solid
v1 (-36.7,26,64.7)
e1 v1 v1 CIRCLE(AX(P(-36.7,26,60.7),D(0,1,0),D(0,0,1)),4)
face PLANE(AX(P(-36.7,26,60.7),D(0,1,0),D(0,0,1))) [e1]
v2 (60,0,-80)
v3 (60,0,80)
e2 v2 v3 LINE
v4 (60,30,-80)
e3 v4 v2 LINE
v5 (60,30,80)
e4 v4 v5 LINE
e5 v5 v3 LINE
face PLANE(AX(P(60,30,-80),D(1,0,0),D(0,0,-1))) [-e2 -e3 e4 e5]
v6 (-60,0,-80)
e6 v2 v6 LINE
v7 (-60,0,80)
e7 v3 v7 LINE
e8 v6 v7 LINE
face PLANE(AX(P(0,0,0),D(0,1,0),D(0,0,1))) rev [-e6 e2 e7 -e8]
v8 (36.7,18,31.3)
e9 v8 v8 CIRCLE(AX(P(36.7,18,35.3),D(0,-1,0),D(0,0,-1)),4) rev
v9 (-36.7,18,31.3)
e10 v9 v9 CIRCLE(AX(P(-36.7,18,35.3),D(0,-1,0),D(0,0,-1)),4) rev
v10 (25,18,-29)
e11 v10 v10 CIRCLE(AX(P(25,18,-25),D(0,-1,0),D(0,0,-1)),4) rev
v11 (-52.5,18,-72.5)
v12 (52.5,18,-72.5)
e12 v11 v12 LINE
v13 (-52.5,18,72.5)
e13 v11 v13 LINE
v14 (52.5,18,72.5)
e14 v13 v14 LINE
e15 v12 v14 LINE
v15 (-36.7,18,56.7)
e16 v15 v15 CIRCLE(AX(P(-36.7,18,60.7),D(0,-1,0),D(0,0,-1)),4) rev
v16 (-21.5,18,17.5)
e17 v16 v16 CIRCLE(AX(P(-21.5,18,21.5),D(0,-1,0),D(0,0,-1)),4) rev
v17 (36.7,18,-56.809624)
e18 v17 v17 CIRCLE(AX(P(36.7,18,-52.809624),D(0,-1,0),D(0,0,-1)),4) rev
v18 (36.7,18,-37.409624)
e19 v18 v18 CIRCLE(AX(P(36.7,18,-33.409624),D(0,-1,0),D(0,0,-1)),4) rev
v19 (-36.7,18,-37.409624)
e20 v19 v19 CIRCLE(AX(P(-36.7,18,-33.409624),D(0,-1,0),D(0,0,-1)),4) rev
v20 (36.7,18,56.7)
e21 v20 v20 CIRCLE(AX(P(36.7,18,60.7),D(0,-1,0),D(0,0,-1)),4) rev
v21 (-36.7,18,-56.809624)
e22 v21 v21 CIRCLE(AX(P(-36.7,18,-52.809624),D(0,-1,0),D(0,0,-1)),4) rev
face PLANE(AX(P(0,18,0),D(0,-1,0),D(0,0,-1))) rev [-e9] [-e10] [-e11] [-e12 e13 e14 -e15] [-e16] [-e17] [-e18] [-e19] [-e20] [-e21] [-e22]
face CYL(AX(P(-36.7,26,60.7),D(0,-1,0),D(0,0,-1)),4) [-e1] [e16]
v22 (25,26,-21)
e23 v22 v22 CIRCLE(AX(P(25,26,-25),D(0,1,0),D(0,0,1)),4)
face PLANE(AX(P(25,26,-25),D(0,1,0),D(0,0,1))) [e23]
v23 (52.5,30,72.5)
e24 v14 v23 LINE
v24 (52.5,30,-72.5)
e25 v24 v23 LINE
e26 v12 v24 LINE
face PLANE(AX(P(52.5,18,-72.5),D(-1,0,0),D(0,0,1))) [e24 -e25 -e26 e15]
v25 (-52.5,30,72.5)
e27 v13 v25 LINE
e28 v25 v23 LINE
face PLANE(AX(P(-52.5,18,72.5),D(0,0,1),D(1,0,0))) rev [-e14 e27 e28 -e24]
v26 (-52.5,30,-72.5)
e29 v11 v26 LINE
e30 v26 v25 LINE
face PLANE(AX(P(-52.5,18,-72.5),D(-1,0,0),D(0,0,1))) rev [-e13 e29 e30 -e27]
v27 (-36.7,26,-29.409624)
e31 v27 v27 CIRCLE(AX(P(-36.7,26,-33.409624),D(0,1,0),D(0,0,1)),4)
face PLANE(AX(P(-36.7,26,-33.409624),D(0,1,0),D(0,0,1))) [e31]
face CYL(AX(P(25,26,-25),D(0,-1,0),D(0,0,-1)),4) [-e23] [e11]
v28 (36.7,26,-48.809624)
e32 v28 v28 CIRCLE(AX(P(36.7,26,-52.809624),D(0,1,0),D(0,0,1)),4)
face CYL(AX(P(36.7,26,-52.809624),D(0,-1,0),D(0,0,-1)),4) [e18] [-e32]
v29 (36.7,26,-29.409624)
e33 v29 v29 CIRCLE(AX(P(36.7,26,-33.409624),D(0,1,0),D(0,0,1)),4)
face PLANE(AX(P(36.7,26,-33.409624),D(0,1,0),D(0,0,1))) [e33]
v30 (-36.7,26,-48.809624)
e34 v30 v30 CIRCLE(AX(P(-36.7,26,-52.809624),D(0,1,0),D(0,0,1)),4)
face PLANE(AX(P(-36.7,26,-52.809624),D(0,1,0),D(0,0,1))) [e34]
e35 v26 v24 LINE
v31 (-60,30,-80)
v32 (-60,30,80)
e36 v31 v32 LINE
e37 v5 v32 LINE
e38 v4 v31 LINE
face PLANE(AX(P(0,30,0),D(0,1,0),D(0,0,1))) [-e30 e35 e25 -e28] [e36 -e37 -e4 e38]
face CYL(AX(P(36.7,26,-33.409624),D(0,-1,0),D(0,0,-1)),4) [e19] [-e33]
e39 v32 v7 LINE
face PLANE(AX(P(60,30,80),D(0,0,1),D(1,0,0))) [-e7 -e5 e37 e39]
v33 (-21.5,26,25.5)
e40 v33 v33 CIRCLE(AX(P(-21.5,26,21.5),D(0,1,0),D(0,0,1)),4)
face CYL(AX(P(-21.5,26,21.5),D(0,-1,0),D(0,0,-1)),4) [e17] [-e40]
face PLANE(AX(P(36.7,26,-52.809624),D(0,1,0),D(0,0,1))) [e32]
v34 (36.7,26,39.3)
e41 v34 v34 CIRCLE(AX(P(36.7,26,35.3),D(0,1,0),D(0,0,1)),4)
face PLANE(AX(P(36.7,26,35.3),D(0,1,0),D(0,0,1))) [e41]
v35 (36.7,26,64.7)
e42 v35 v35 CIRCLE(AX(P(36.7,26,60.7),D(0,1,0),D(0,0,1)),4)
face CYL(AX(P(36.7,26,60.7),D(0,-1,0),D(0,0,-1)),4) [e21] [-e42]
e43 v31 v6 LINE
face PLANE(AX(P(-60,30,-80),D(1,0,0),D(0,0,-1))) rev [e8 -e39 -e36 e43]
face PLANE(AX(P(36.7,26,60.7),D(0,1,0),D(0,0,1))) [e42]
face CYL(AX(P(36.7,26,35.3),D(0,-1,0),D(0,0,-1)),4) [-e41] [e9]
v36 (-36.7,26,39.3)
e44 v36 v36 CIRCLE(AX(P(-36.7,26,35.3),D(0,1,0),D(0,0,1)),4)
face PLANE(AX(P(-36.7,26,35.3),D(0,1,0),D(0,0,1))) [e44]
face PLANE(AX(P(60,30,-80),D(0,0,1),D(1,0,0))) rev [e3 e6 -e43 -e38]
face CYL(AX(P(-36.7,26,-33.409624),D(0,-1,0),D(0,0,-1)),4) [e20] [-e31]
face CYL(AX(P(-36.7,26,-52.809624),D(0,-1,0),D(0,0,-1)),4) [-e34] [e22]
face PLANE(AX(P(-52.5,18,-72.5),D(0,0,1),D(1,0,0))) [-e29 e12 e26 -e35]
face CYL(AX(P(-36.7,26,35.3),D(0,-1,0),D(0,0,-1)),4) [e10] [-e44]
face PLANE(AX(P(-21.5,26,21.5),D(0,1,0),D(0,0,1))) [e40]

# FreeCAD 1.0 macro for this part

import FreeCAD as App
import Part
import Sketcher

doc = App.newDocument("Part")
params = doc.addObject("Spreadsheet::Sheet", "Params")
for row, (alias, value) in enumerate([
    ("sketch1_width", "120 mm"),
    ("sketch1_height", "160 mm"),
    ("pad1_length", "30 mm"),
    ("sketch2_width", "105 mm"),
    ("sketch2_height", "145 mm"),
    ("pocket1_length", "12 mm"),
    ("sketch3_diameter", "8 mm"),
    ("pad2_length", "8 mm"),
], start=1):
    params.set(f"A{row}", alias)
    params.set(f"B{row}", "=" + value)
    params.setAlias(f"B{row}", alias)

body = doc.addObject("PartDesign::Body", "Body")

sketch1 = body.newObject("Sketcher::SketchObject", "Sketch")
sketch1.AttachmentSupport = (doc.getObject("XZ_Plane"), [""])
sketch1.MapMode = "FlatFace"
sketch1.addGeometry([
    Part.LineSegment(App.Vector(-60, -80, 0), App.Vector(-60, 80, 0)),
    Part.LineSegment(App.Vector(-60, 80, 0), App.Vector(60, 80, 0)),
    Part.LineSegment(App.Vector(60, 80, 0), App.Vector(60, -80, 0)),
    Part.LineSegment(App.Vector(60, -80, 0), App.Vector(-60, -80, 0)),
], False)
sketch1.addConstraint([
    Sketcher.Constraint("Coincident", 0, 2, 1, 1),
    Sketcher.Constraint("Coincident", 1, 2, 2, 1),
    Sketcher.Constraint("Coincident", 2, 2, 3, 1),
    Sketcher.Constraint("Coincident", 3, 2, 0, 1),
    Sketcher.Constraint("Vertical", 0),
    Sketcher.Constraint("Horizontal", 1),
    Sketcher.Constraint("Vertical", 2),
    Sketcher.Constraint("Horizontal", 3),
    Sketcher.Constraint("Symmetric", 0, 2, 2, 2, -1, 1),
    Sketcher.Constraint("DistanceX", 1, 1, 1, 2, 120.0),
    Sketcher.Constraint("DistanceY", 0, 1, 0, 2, 160.0),
])
sketch1.setExpression("Constraints[9]", "Params.sketch1_width")
sketch1.setExpression("Constraints[10]", "Params.sketch1_height")
pad1 = body.newObject("PartDesign::Pad", "Pad")
pad1.Profile = sketch1
pad1.setExpression("Length", "Params.pad1_length")
pad1.Reversed = True

sketch2 = body.newObject("Sketcher::SketchObject", "Sketch001")
sketch2.AttachmentSupport = (doc.getObject("XZ_Plane"), [""])
sketch2.MapMode = "FlatFace"
sketch2.AttachmentOffset = App.Placement(App.Vector(0, 0, -30), App.Rotation())
sketch2.addGeometry([
    Part.LineSegment(App.Vector(-52.5, -72.5, 0), App.Vector(-52.5, 72.5, 0)),
    Part.LineSegment(App.Vector(-52.5, 72.5, 0), App.Vector(52.5, 72.5, 0)),
    Part.LineSegment(App.Vector(52.5, 72.5, 0), App.Vector(52.5, -72.5, 0)),
    Part.LineSegment(App.Vector(52.5, -72.5, 0), App.Vector(-52.5, -72.5, 0)),
], False)
sketch2.addConstraint([
    Sketcher.Constraint("Coincident", 0, 2, 1, 1),
    Sketcher.Constraint("Coincident", 1, 2, 2, 1),
    Sketcher.Constraint("Coincident", 2, 2, 3, 1),
    Sketcher.Constraint("Coincident", 3, 2, 0, 1),
    Sketcher.Constraint("Vertical", 0),
    Sketcher.Constraint("Horizontal", 1),
    Sketcher.Constraint("Vertical", 2),
    Sketcher.Constraint("Horizontal", 3),
    Sketcher.Constraint("Symmetric", 0, 2, 2, 2, -1, 1),
    Sketcher.Constraint("DistanceX", 1, 1, 1, 2, 105.0),
    Sketcher.Constraint("DistanceY", 0, 1, 0, 2, 145.0),
])
sketch2.setExpression("Constraints[9]", "Params.sketch2_width")
sketch2.setExpression("Constraints[10]", "Params.sketch2_height")
pocket1 = body.newObject("PartDesign::Pocket", "Pocket")
pocket1.Profile = sketch2
pocket1.setExpression("Length", "Params.pocket1_length")
pocket1.Reversed = True

sketch3 = body.newObject("Sketcher::SketchObject", "Sketch002")
sketch3.AttachmentSupport = (doc.getObject("XZ_Plane"), [""])
sketch3.MapMode = "FlatFace"
sketch3.AttachmentOffset = App.Placement(App.Vector(0, 0, -18), App.Rotation())
sketch3.addGeometry([
    Part.Circle(App.Vector(-21.5, 21.5, 0), App.Vector(0, 0, 1), 4),
    Part.Circle(App.Vector(25, -25, 0), App.Vector(0, 0, 1), 4),
    Part.Circle(App.Vector(-36.7, 35.3, 0), App.Vector(0, 0, 1), 4),
    Part.Circle(App.Vector(36.7, 35.3, 0), App.Vector(0, 0, 1), 4),
    Part.Circle(App.Vector(36.7, 60.7, 0), App.Vector(0, 0, 1), 4),
    Part.Circle(App.Vector(-36.7, 60.7, 0), App.Vector(0, 0, 1), 4),
    Part.Circle(App.Vector(36.7, -33.409624, 0), App.Vector(0, 0, 1), 4),
    Part.Circle(App.Vector(-36.7, -33.409624, 0), App.Vector(0, 0, 1), 4),
    Part.Circle(App.Vector(-36.7, -52.809624, 0), App.Vector(0, 0, 1), 4),
    Part.Circle(App.Vector(36.7, -52.809624, 0), App.Vector(0, 0, 1), 4),
], False)
sketch3.addConstraint([
    Sketcher.Constraint("Equal", 0, 1),
    Sketcher.Constraint("Equal", 1, 2),
    Sketcher.Constraint("Equal", 2, 3),
    Sketcher.Constraint("Equal", 3, 4),
    Sketcher.Constraint("Equal", 4, 5),
    Sketcher.Constraint("Equal", 5, 6),
    Sketcher.Constraint("Equal", 6, 7),
    Sketcher.Constraint("Equal", 7, 8),
    Sketcher.Constraint("Equal", 8, 9),
    Sketcher.Constraint("Symmetric", 2, 3, 3, 3, -2),
    Sketcher.Constraint("Symmetric", 4, 3, 5, 3, -2),
    Sketcher.Constraint("Symmetric", 6, 3, 7, 3, -2),
    Sketcher.Constraint("Symmetric", 8, 3, 9, 3, -2),
    Sketcher.Constraint("Vertical", 3, 3, 4, 3),
    Sketcher.Constraint("Vertical", 4, 3, 6, 3),
    Sketcher.Constraint("Vertical", 7, 3, 8, 3),
    Sketcher.Constraint("Diameter", 0, 8.0),
    Sketcher.Constraint("DistanceX", -1, 1, 1, 3, 25.0),
    Sketcher.Constraint("DistanceY", 1, 3, -1, 1, 25.0),
    Sketcher.Constraint("DistanceX", 0, 3, -1, 1, 21.5),
    Sketcher.Constraint("DistanceY", -1, 1, 0, 3, 21.5),
    Sketcher.Constraint("DistanceX", 2, 3, -1, 1, 36.7),
    Sketcher.Constraint("DistanceY", -1, 1, 2, 3, 35.3),
    Sketcher.Constraint("DistanceY", -1, 1, 4, 3, 60.7),
    Sketcher.Constraint("DistanceY", 8, 3, 7, 3, 19.4),
    Sketcher.Constraint("DistanceY", 6, 3, -1, 1, 33.409624),
])
sketch3.setExpression("Constraints[16]", "Params.sketch3_diameter")
pad2 = body.newObject("PartDesign::Pad", "Pad001")
pad2.Profile = sketch3
pad2.setExpression("Length", "Params.pad2_length")
pad2.Reversed = True

doc.recompute()
